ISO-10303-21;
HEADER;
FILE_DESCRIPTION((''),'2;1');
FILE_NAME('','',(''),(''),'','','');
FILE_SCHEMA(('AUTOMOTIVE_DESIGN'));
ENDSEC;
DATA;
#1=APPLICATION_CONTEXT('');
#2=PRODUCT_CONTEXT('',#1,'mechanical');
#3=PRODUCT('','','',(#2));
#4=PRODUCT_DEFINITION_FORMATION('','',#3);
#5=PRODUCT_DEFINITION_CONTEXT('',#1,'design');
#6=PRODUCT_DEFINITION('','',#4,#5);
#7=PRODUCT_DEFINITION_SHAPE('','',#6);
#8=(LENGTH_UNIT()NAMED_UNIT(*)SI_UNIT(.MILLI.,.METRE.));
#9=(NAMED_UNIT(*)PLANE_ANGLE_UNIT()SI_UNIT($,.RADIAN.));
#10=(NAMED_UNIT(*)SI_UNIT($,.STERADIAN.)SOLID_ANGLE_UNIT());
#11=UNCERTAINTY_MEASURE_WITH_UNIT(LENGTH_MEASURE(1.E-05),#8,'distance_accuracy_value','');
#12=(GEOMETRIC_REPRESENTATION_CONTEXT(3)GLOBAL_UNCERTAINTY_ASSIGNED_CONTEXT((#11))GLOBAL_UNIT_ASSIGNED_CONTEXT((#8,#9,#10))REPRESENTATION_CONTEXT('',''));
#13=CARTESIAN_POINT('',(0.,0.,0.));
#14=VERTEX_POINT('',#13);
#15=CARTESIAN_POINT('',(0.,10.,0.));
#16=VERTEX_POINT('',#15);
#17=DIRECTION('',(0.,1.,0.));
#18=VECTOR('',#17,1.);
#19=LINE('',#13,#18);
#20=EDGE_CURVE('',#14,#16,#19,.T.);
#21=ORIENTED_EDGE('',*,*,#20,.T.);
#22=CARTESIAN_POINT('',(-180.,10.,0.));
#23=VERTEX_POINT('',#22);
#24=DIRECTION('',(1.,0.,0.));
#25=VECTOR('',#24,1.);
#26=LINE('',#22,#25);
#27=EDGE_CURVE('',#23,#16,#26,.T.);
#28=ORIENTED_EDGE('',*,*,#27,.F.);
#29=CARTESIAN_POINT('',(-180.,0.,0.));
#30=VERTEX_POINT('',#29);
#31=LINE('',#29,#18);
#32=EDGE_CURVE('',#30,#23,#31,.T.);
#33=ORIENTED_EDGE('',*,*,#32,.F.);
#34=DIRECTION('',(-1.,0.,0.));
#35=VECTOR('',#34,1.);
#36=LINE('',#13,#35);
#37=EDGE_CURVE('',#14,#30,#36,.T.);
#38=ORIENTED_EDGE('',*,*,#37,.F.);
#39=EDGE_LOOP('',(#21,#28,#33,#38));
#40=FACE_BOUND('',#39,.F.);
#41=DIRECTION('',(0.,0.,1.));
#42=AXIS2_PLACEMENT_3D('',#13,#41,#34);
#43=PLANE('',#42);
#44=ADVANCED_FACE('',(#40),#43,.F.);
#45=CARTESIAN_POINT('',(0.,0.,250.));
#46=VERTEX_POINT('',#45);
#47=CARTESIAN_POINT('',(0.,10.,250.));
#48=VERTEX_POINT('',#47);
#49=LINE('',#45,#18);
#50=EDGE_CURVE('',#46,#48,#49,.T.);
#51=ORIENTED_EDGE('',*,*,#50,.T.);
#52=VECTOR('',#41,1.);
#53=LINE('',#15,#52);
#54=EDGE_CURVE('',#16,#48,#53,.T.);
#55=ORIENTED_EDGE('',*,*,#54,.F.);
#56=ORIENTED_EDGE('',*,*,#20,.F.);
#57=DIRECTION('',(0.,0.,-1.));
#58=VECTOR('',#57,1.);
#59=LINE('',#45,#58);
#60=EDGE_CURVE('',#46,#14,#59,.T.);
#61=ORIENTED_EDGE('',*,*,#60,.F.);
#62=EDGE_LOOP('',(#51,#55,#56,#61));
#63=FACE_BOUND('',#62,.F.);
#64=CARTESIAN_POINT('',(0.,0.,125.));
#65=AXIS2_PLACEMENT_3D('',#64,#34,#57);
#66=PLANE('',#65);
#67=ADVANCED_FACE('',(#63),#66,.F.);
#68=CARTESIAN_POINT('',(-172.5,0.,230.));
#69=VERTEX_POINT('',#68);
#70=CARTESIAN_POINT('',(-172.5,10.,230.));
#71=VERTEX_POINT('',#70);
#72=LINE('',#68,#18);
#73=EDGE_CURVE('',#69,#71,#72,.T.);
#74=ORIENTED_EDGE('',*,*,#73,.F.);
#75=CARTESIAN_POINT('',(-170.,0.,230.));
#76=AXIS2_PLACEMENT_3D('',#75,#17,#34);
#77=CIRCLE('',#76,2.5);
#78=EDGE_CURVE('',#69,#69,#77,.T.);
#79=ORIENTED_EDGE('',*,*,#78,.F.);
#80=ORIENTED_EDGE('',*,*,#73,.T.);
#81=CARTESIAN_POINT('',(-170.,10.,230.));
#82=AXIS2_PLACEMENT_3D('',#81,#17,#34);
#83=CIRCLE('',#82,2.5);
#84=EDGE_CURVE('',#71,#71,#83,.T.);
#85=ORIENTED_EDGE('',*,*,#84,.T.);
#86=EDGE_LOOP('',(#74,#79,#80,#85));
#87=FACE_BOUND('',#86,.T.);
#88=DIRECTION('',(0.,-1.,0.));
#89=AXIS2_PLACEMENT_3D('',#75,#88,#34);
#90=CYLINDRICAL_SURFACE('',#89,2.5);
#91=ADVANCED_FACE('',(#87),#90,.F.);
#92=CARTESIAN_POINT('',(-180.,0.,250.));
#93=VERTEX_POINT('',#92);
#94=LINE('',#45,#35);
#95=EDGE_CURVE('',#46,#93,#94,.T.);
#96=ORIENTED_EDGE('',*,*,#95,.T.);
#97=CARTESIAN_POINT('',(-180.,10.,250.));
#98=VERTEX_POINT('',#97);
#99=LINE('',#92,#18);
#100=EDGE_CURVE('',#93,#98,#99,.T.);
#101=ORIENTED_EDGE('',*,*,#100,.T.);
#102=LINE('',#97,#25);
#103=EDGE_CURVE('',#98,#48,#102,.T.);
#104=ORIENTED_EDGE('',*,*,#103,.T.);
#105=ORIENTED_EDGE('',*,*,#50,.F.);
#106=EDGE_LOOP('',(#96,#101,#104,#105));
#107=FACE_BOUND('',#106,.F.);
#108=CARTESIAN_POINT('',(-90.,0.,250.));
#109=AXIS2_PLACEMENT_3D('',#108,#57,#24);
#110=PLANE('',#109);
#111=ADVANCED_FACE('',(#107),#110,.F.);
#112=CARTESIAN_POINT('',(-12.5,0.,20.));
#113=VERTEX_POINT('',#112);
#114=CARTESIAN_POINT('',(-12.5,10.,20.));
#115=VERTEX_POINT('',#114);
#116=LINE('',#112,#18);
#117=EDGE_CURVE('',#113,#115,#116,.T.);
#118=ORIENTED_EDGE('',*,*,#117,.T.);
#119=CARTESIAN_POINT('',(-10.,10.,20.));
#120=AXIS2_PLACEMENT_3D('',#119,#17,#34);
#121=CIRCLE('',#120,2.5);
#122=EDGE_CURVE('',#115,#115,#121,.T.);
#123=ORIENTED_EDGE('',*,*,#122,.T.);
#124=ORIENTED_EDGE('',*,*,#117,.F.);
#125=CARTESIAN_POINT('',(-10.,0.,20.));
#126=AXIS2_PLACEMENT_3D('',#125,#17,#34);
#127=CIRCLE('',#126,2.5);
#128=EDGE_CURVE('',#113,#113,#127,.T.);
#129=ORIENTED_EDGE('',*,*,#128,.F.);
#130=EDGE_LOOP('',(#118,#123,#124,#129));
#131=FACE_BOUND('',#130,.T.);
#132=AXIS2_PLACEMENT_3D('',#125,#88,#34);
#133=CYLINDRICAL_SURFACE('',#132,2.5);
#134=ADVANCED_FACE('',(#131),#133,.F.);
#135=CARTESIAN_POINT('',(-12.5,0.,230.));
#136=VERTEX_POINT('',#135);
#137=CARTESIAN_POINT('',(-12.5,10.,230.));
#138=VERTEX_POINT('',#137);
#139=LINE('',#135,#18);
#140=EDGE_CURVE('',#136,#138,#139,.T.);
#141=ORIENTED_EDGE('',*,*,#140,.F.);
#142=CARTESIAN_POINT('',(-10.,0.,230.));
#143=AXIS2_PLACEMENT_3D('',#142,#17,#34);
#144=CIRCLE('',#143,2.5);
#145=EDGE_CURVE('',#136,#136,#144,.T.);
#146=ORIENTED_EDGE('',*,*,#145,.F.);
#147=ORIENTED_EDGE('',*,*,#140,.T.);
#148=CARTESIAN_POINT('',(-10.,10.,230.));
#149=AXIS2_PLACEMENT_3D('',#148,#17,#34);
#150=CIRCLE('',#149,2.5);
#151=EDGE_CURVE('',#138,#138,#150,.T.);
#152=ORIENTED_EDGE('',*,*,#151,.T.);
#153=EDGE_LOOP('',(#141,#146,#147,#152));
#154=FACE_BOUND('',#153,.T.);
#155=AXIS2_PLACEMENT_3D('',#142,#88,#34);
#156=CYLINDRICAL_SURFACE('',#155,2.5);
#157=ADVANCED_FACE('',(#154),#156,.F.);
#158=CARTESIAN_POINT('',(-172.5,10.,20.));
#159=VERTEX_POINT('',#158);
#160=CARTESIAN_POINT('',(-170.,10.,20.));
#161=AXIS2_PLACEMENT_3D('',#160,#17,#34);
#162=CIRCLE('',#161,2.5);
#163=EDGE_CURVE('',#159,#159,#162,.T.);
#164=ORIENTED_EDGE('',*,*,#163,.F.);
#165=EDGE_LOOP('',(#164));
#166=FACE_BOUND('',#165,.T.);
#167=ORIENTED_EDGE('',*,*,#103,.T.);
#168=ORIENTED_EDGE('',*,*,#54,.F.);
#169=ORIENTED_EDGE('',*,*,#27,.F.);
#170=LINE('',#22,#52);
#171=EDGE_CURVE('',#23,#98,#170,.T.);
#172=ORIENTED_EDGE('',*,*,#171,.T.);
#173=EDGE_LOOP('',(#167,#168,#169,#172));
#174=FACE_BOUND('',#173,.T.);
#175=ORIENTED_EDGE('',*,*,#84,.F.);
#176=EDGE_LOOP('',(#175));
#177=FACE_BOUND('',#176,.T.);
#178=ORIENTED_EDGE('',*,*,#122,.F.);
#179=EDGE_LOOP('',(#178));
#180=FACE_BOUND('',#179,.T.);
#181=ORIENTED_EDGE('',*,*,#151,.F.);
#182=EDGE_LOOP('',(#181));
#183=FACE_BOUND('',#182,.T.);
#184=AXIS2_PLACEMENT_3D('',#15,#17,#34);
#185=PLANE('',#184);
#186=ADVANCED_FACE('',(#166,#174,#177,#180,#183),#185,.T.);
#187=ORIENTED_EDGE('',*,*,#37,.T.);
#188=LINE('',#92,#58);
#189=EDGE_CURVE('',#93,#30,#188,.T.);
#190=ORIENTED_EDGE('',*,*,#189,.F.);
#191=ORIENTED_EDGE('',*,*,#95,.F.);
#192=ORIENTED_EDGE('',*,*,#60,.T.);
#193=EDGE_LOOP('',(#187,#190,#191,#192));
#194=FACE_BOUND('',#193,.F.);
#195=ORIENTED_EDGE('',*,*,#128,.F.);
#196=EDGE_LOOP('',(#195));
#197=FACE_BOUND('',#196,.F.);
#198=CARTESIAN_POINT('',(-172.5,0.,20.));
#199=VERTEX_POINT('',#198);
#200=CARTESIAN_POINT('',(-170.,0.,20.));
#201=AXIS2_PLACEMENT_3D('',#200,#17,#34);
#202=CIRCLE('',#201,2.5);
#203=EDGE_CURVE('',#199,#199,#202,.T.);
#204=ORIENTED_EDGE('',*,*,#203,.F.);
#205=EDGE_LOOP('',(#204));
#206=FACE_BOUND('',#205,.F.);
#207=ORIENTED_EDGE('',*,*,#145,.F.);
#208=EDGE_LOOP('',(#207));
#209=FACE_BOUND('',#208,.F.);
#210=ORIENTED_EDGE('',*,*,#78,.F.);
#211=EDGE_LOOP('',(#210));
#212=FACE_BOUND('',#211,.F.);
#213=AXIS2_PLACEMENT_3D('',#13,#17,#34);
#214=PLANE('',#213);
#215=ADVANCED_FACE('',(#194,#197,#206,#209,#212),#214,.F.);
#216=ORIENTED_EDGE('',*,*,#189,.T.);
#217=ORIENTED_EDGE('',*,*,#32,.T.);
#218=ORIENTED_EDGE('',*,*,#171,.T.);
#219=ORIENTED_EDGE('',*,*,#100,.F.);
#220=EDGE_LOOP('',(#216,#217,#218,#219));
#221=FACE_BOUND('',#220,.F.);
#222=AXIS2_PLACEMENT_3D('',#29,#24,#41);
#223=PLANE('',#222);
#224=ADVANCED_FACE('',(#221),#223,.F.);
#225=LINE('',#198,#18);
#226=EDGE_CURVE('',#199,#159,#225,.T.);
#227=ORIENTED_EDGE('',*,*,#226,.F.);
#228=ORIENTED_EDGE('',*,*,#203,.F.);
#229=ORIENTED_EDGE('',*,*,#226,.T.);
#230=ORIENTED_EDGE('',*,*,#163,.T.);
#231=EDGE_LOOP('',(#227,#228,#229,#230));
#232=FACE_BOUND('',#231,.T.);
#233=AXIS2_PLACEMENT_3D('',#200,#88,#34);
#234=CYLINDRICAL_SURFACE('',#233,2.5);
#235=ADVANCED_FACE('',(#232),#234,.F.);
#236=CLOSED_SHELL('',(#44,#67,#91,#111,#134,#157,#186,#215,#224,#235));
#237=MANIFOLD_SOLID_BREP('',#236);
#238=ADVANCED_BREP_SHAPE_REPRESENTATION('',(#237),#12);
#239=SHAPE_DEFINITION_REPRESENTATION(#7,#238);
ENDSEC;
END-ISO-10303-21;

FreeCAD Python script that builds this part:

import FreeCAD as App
import Part
import Sketcher
Q = App.Units.Quantity

doc = App.newDocument("Part")
body = doc.addObject("PartDesign::Body", "Body")

# Sketch on XZ plane
sketch1 = body.newObject("Sketcher::SketchObject", "Sketch")
sketch1.AttachmentSupport = (doc.getObject("XZ_Plane"), [""])
sketch1.MapMode = "FlatFace"
sketch1.addGeometry([
    Part.LineSegment(App.Vector(0, 0, 0), App.Vector(-180, 0, 0)),  # 0
    Part.LineSegment(App.Vector(-180, 0, 0), App.Vector(-180, 250, 0)),  # 1
    Part.LineSegment(App.Vector(-180, 250, 0), App.Vector(0, 250, 0)),  # 2
    Part.LineSegment(App.Vector(0, 250, 0), App.Vector(0, 0, 0)),  # 3
    Part.Circle(App.Vector(-10, 20, 0), App.Vector(0, 0, 1), 2.5),  # 4
    Part.Circle(App.Vector(-10, 230, 0), App.Vector(0, 0, 1), 2.5),  # 5
    Part.Circle(App.Vector(-170, 20, 0), App.Vector(0, 0, 1), 2.5),  # 6
    Part.Circle(App.Vector(-170, 230, 0), App.Vector(0, 0, 1), 2.5),  # 7
], False)
sketch1.addConstraint([
    Sketcher.Constraint("Coincident", 0, 2, 1, 1),
    Sketcher.Constraint("Coincident", 1, 2, 2, 1),
    Sketcher.Constraint("Coincident", 2, 2, 3, 1),
    Sketcher.Constraint("Coincident", 3, 2, 0, 1),
    Sketcher.Constraint("Horizontal", 0),
    Sketcher.Constraint("Vertical", 1),
    Sketcher.Constraint("Horizontal", 2),
    Sketcher.Constraint("Vertical", 3),
    Sketcher.Constraint("Coincident", 3, 2, -1, 1),
    Sketcher.Constraint("Equal", 4, 5),
    Sketcher.Constraint("Equal", 5, 6),
    Sketcher.Constraint("Equal", 6, 7),
    Sketcher.Constraint("Horizontal", 4, 3, 6, 3),
    Sketcher.Constraint("Horizontal", 5, 3, 7, 3),
    Sketcher.Constraint("Vertical", 4, 3, 5, 3),
    Sketcher.Constraint("Vertical", 6, 3, 7, 3),
    Sketcher.Constraint("Diameter", 4, Q("5 mm")),
    Sketcher.Constraint("DistanceX", 0, 2, 0, 1, Q("180 mm")),
    Sketcher.Constraint("DistanceY", 1, 1, 1, 2, Q("250 mm")),
    Sketcher.Constraint("DistanceX", 4, 3, -1, 1, Q("10 mm")),
    Sketcher.Constraint("DistanceY", -1, 1, 4, 3, Q("20 mm")),
    Sketcher.Constraint("DistanceX", 0, 2, 6, 3, Q("10 mm")),
    Sketcher.Constraint("DistanceY", 7, 3, 1, 2, Q("20 mm")),
])
pad1 = body.newObject("PartDesign::Pad", "Pad")
pad1.Profile = sketch1
pad1.Length = 10
pad1.Reversed = True

doc.recompute()
